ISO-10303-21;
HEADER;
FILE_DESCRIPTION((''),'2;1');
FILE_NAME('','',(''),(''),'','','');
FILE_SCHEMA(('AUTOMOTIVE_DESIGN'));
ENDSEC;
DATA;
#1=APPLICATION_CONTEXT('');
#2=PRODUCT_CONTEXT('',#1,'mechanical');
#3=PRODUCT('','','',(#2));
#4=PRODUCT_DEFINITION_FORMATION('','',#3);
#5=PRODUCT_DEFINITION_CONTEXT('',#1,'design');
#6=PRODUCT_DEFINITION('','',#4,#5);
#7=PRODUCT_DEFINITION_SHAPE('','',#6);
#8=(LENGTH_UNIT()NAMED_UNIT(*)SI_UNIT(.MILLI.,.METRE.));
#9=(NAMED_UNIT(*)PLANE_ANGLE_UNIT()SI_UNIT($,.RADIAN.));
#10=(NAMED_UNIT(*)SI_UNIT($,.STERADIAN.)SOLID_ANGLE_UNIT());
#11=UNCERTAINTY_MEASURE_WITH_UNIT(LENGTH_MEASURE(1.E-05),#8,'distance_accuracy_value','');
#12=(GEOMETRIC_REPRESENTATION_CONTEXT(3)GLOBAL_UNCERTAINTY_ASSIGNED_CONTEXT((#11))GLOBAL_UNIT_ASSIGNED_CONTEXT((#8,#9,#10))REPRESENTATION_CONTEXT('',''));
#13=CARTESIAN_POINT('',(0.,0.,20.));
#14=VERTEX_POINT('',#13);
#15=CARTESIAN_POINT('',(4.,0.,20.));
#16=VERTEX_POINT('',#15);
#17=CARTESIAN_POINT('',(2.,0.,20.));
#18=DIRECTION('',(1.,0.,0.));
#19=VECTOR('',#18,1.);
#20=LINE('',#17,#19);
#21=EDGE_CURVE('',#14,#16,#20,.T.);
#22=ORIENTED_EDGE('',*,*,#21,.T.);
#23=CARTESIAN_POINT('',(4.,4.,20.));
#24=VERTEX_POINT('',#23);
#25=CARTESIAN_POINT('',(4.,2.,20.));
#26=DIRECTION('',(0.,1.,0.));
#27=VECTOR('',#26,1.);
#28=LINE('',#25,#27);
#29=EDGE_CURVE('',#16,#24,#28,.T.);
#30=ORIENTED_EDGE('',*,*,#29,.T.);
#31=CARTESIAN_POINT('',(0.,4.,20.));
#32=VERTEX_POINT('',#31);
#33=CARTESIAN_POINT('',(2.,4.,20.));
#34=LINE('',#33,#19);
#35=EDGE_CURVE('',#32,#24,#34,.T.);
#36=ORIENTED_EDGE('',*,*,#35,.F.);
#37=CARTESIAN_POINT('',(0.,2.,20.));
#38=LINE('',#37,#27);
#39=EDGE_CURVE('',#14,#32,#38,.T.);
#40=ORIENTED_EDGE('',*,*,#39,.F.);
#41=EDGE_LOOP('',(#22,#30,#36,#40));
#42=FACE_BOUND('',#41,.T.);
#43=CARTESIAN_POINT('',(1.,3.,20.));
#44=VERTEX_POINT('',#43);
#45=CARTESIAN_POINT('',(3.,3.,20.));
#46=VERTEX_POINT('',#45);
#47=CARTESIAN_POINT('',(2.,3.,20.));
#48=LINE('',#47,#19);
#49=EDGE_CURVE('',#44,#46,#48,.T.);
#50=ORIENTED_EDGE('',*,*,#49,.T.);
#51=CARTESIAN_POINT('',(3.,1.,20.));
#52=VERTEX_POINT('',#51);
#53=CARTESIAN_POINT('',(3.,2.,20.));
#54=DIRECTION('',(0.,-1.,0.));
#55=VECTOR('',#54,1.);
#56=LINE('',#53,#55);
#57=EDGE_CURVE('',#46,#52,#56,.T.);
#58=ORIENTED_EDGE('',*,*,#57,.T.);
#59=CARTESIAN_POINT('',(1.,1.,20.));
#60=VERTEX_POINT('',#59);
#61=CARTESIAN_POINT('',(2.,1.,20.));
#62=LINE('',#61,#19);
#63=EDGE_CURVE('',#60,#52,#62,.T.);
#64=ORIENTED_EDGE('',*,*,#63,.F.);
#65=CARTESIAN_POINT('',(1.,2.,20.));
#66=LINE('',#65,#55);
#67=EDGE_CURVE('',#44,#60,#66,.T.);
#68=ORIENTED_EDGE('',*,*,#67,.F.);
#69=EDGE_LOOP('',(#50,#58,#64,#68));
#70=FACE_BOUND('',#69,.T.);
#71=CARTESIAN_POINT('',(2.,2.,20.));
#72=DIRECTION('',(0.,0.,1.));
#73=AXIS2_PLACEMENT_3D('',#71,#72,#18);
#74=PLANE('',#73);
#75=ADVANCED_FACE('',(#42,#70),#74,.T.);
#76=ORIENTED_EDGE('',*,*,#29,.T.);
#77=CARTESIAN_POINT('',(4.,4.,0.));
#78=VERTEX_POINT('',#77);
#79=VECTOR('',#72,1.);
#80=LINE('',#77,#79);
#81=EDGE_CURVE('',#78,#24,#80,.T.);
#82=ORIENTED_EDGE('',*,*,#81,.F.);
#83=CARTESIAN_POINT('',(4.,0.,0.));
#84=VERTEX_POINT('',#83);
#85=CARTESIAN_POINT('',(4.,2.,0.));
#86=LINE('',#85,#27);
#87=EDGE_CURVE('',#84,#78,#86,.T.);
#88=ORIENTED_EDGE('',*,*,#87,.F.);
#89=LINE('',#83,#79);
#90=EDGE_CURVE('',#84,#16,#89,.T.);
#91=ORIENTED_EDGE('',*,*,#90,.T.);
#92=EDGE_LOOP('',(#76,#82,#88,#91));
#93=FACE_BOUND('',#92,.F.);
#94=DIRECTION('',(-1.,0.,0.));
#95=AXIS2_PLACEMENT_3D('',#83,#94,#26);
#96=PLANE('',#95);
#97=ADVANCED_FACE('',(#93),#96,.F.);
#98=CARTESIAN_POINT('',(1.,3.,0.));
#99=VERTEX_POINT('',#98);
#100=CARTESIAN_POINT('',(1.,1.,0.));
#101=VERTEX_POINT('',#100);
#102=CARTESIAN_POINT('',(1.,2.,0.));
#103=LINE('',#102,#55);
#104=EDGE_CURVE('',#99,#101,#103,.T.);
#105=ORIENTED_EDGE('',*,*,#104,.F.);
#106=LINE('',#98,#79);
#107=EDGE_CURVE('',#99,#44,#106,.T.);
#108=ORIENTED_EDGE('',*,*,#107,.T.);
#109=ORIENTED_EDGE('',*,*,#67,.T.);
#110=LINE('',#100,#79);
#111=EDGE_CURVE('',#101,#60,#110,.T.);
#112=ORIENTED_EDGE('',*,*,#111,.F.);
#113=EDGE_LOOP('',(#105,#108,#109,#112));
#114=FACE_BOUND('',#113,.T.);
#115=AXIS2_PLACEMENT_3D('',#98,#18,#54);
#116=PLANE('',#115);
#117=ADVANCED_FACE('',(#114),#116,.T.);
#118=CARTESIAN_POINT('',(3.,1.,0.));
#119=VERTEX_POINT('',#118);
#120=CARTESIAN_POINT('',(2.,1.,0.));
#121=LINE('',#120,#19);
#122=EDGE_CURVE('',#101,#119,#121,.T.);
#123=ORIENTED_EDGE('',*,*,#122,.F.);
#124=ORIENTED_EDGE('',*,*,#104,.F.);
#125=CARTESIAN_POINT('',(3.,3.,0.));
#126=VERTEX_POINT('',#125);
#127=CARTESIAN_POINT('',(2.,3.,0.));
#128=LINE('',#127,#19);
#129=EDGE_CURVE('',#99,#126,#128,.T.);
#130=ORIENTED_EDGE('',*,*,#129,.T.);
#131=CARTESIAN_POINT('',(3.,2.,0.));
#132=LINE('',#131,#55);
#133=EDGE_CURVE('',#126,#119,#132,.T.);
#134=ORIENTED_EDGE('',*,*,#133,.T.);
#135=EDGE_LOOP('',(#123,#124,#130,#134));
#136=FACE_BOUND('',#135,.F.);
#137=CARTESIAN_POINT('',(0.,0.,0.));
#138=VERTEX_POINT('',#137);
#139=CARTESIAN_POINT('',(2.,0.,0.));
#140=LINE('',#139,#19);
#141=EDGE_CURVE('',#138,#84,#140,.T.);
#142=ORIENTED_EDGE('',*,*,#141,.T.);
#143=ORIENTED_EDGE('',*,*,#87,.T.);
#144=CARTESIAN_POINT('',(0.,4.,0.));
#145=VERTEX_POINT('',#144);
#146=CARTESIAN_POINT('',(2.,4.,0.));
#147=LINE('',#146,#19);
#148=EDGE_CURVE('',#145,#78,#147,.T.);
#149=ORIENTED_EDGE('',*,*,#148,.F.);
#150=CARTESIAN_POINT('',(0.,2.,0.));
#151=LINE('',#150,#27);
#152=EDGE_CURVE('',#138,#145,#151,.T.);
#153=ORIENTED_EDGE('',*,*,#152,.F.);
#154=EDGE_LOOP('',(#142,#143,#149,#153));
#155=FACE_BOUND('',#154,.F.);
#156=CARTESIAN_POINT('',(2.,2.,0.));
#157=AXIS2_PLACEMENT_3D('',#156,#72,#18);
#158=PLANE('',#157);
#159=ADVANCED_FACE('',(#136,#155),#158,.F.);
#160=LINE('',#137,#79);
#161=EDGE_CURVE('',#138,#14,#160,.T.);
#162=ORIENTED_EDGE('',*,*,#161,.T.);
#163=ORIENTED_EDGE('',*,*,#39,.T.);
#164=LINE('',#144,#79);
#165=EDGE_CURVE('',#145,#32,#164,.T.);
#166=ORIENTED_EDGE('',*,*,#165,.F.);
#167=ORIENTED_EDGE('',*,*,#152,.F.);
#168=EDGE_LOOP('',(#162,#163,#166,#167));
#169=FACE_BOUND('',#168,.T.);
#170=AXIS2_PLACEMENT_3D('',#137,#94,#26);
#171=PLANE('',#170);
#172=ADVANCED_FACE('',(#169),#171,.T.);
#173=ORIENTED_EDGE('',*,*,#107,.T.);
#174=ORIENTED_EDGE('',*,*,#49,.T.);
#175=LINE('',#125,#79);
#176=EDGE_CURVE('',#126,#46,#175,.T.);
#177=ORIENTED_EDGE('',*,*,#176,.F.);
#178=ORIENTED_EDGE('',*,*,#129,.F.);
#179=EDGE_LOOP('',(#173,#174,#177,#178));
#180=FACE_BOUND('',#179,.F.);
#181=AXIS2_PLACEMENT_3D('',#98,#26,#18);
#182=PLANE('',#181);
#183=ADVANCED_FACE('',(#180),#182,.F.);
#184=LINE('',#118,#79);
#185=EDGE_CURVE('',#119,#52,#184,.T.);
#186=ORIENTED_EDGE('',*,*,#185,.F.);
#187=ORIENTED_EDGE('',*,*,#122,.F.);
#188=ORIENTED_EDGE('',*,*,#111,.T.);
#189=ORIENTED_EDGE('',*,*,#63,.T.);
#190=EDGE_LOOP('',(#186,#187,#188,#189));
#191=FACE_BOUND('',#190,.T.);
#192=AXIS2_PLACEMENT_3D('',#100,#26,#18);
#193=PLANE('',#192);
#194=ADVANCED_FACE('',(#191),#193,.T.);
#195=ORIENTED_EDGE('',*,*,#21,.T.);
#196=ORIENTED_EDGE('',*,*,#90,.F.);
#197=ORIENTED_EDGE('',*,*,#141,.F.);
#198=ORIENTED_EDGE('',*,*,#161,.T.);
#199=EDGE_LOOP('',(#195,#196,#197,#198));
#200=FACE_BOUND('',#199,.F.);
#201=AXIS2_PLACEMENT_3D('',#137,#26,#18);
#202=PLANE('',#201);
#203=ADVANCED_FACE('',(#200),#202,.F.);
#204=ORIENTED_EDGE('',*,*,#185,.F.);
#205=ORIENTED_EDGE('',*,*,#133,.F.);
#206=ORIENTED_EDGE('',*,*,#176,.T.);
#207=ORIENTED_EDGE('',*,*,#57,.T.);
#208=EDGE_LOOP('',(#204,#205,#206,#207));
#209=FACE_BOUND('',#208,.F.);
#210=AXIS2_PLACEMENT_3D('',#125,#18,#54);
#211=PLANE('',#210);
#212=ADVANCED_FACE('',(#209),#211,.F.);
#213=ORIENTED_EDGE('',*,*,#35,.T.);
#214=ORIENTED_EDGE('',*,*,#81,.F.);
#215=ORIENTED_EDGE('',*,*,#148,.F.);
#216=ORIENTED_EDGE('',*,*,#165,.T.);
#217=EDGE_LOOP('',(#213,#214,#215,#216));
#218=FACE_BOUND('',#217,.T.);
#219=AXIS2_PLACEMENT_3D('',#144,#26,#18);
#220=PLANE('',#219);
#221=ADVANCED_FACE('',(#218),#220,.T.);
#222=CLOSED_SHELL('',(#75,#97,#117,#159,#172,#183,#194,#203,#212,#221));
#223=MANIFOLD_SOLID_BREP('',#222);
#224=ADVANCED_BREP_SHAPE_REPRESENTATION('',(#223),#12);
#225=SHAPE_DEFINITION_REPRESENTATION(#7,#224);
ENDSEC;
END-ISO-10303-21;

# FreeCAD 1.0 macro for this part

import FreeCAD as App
import Part
import Sketcher
from FreeCAD import Vector
Q = App.Units.Quantity

doc = App.newDocument("Part")
body = doc.addObject("PartDesign::Body", "Body")

# Sketch on XY plane
sketch1 = body.newObject("Sketcher::SketchObject", "Sketch")
sketch1.AttachmentSupport = (doc.getObject("XY_Plane"), [""])
sketch1.MapMode = "FlatFace"
sketch1.addGeometry([
    Part.LineSegment(Vector(0, 4, 0), Vector(0, 0, 0)),
    Part.LineSegment(Vector(0, 0, 0), Vector(4, 0, 0)),
    Part.LineSegment(Vector(4, 0, 0), Vector(4, 4, 0)),
    Part.LineSegment(Vector(4, 4, 0), Vector(0, 4, 0)),
], False)
sketch1.addConstraint([
    Sketcher.Constraint("Coincident", 0, 2, 1, 1),
    Sketcher.Constraint("Coincident", 1, 2, 2, 1),
    Sketcher.Constraint("Coincident", 2, 2, 3, 1),
    Sketcher.Constraint("Coincident", 3, 2, 0, 1),
    Sketcher.Constraint("Vertical", 0),
    Sketcher.Constraint("Horizontal", 1),
    Sketcher.Constraint("Vertical", 2),
    Sketcher.Constraint("Horizontal", 3),
    Sketcher.Constraint("Coincident", 0, 2, -1, 1),
    Sketcher.Constraint("Equal", 3, 0),
    Sketcher.Constraint("DistanceX", 1, 1, 1, 2, Q("4 mm")),
])
pad1 = body.newObject("PartDesign::Pad", "Pad")
pad1.Profile = sketch1
pad1.Length = 20

# Sketch on XY plane
sketch2 = body.newObject("Sketcher::SketchObject", "Sketch001")
sketch2.AttachmentSupport = (doc.getObject("XY_Plane"), [""])
sketch2.MapMode = "FlatFace"
sketch2.addGeometry([
    Part.LineSegment(Vector(1, 1, 0), Vector(1, 3, 0)),
    Part.LineSegment(Vector(1, 3, 0), Vector(3, 3, 0)),
    Part.LineSegment(Vector(3, 3, 0), Vector(3, 1, 0)),
    Part.LineSegment(Vector(3, 1, 0), Vector(1, 1, 0)),
], False)
sketch2.addConstraint([
    Sketcher.Constraint("Coincident", 0, 2, 1, 1),
    Sketcher.Constraint("Coincident", 1, 2, 2, 1),
    Sketcher.Constraint("Coincident", 2, 2, 3, 1),
    Sketcher.Constraint("Coincident", 3, 2, 0, 1),
    Sketcher.Constraint("Vertical", 0),
    Sketcher.Constraint("Horizontal", 1),
    Sketcher.Constraint("Vertical", 2),
    Sketcher.Constraint("Horizontal", 3),
    Sketcher.Constraint("Equal", 3, 0),
    Sketcher.Constraint("DistanceX", 1, 1, 1, 2, Q("2 mm")),
    Sketcher.Constraint("DistanceX", -1, 1, 0, 2, Q("1 mm")),
    Sketcher.Constraint("DistanceY", -1, 1, 0, 2, Q("3 mm")),
])
pocket1 = body.newObject("PartDesign::Pocket", "Pocket")
pocket1.Profile = sketch2
pocket1.Length = 20
pocket1.Reversed = True

doc.recompute()
